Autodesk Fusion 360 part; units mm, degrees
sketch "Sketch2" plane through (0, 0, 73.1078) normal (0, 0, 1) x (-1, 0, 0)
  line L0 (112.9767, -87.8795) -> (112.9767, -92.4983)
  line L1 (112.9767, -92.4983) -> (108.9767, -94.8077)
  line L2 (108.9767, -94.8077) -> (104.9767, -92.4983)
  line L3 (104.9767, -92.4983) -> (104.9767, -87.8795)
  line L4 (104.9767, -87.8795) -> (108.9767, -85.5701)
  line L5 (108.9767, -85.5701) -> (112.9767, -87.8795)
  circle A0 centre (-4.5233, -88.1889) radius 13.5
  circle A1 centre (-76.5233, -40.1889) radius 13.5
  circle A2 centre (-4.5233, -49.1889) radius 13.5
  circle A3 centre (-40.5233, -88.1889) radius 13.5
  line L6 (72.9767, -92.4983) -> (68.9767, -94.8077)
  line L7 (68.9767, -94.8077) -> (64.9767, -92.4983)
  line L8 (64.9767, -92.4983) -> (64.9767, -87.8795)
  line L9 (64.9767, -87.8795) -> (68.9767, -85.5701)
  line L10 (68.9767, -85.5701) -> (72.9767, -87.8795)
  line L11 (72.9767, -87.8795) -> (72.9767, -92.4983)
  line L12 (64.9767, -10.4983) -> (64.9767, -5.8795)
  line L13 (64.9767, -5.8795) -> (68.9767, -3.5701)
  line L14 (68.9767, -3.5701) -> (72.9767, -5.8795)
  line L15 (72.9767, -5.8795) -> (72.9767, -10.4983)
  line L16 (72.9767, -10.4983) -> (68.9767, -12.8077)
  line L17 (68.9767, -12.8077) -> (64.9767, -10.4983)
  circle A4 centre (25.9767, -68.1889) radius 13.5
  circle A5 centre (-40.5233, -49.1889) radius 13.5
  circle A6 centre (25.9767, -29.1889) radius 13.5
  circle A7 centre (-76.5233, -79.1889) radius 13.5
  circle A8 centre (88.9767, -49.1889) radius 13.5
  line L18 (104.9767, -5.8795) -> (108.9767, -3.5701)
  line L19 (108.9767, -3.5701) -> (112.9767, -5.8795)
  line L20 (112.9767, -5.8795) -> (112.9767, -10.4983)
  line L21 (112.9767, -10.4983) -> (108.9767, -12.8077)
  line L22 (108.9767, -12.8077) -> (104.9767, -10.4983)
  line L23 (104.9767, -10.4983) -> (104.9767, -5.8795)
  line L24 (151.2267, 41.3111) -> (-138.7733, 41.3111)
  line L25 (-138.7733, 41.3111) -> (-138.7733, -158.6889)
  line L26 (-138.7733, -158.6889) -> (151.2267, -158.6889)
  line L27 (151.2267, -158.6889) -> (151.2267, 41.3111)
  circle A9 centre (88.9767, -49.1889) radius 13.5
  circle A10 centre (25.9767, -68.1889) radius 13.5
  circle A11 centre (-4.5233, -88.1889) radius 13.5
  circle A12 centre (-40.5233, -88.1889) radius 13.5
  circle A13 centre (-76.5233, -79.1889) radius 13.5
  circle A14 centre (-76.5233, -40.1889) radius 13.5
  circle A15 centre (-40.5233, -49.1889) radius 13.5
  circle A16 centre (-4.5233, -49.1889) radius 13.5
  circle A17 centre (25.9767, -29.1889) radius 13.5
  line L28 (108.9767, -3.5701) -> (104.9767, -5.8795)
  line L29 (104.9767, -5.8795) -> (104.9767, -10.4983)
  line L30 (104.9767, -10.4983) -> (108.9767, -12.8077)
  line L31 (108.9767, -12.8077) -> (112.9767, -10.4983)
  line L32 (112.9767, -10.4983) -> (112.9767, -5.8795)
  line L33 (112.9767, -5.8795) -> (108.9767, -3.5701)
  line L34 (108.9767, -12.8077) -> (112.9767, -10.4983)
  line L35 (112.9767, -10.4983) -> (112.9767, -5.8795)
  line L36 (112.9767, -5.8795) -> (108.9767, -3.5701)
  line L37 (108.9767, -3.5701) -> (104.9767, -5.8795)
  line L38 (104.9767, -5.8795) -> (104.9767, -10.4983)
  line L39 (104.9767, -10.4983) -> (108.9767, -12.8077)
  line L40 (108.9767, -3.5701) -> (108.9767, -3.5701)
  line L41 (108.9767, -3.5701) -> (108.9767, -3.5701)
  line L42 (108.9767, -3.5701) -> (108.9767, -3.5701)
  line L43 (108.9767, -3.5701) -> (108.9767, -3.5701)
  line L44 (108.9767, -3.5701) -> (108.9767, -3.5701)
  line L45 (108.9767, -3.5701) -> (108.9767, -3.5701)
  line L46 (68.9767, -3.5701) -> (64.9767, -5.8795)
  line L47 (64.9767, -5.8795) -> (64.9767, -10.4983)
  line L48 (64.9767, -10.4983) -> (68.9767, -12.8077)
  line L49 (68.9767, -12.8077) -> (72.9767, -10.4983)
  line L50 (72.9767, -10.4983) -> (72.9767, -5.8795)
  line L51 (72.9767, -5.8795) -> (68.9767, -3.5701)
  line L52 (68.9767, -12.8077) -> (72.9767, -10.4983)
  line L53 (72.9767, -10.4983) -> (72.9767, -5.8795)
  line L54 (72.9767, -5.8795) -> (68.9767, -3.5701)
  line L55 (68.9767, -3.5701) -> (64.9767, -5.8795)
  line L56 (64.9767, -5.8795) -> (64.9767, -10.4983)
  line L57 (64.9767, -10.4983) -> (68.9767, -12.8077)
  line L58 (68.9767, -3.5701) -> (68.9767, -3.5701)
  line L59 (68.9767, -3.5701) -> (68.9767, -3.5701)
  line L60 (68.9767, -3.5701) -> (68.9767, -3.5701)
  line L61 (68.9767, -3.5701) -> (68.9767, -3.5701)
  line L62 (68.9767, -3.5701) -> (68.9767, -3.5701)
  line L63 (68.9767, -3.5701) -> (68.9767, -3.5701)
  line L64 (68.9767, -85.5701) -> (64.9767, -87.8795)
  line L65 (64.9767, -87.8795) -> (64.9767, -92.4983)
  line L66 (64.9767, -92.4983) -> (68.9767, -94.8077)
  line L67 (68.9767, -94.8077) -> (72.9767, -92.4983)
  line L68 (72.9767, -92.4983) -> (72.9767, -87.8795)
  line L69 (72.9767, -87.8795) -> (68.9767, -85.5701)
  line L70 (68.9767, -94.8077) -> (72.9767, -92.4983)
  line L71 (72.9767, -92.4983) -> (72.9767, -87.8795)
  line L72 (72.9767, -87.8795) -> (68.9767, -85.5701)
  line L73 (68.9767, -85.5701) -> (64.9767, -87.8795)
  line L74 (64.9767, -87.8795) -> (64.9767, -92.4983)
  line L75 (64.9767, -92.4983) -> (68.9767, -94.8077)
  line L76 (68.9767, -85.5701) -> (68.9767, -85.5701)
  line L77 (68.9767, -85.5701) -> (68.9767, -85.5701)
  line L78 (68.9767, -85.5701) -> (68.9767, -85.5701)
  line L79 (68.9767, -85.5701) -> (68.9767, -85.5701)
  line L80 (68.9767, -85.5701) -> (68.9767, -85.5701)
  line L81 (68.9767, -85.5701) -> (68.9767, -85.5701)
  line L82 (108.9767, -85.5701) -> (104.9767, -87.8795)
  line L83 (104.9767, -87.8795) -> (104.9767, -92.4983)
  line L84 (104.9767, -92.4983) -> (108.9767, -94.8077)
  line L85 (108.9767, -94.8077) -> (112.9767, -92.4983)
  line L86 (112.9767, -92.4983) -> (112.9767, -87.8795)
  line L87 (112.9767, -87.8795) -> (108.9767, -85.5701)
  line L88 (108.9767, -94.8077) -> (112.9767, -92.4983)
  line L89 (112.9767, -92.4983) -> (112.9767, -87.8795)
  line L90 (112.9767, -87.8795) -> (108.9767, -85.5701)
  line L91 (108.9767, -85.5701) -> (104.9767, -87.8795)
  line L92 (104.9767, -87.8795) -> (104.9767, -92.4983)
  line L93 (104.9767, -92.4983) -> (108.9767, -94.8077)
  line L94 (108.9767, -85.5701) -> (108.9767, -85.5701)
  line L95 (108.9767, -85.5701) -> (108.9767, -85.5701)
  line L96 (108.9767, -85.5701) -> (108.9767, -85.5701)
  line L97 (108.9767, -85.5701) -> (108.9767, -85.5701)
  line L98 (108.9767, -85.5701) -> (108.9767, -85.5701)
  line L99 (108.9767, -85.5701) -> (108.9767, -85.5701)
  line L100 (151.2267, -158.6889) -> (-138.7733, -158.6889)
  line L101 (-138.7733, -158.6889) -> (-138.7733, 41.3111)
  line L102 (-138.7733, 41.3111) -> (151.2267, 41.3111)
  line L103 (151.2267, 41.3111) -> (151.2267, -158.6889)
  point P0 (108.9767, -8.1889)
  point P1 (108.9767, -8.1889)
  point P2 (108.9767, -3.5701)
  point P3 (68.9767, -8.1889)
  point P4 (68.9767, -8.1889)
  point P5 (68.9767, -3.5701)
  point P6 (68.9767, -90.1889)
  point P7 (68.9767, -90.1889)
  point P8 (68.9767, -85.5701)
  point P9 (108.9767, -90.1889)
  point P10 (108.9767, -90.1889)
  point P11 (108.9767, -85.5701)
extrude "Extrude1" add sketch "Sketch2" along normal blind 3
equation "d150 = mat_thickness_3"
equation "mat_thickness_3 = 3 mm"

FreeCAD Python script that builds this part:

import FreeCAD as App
import Part
import Sketcher
Q = App.Units.Quantity

doc = App.newDocument("Part")
params = doc.addObject("Spreadsheet::Sheet", "Params")
for row, (alias, value) in enumerate([
    ("sketch1_diameter", "27 mm"),
    ("sketch1_width", "290 mm"),
    ("sketch1_height", "200 mm"),
    ("pad1_length", "3 mm"),
], start=1):
    params.set(f"A{row}", alias)
    params.set(f"B{row}", "=" + value)
    params.setAlias(f"B{row}", alias)

body = doc.addObject("PartDesign::Body", "Body")

sketch1 = doc.addObject("Sketcher::SketchObject", "Sketch")
body.addObject(sketch1)
sketch1.AttachmentSupport = (doc.XY_Plane, [""])
sketch1.MapMode = "FlatFace"
sketch1.AttachmentOffset = App.Placement(App.Vector(0, 0, 73.1078), App.Rotation())
sketch1.addGeometry([
    Part.LineSegment(App.Vector(-151.2, 158.7, 0), App.Vector(-151.2, -41.3, 0)),
    Part.LineSegment(App.Vector(-151.2, -41.3, 0), App.Vector(138.8, -41.3, 0)),
    Part.LineSegment(App.Vector(138.8, -41.3, 0), App.Vector(138.8, 158.7, 0)),
    Part.LineSegment(App.Vector(138.8, 158.7, 0), App.Vector(-151.2, 158.7, 0)),
    Part.Circle(App.Vector(76.5, 79.2, 0), App.Vector(0, 0, 1), 13.5),
    Part.Circle(App.Vector(40.5, 88.2, 0), App.Vector(0, 0, 1), 13.5),
    Part.Circle(App.Vector(4.5, 88.2, 0), App.Vector(0, 0, 1), 13.5),
    Part.LineSegment(App.Vector(-73, 87.9, 0), App.Vector(-73, 92.5, 0)),
    Part.LineSegment(App.Vector(-73, 92.5, 0), App.Vector(-69, 94.8, 0)),
    Part.LineSegment(App.Vector(-69, 94.8, 0), App.Vector(-65, 92.5, 0)),
    Part.LineSegment(App.Vector(-65, 92.5, 0), App.Vector(-65, 87.9, 0)),
    Part.LineSegment(App.Vector(-65, 87.9, 0), App.Vector(-69, 85.6, 0)),
    Part.LineSegment(App.Vector(-69, 85.6, 0), App.Vector(-73, 87.9, 0)),
    Part.Circle(App.Vector(-26, 68.2, 0), App.Vector(0, 0, 1), 13.5),
    Part.LineSegment(App.Vector(-109, 85.6, 0), App.Vector(-113, 87.9, 0)),
    Part.LineSegment(App.Vector(-113, 87.9, 0), App.Vector(-113, 92.5, 0)),
    Part.LineSegment(App.Vector(-113, 92.5, 0), App.Vector(-109, 94.8, 0)),
    Part.LineSegment(App.Vector(-109, 94.8, 0), App.Vector(-105, 92.5, 0)),
    Part.LineSegment(App.Vector(-105, 92.5, 0), App.Vector(-105, 87.9, 0)),
    Part.LineSegment(App.Vector(-105, 87.9, 0), App.Vector(-109, 85.6, 0)),
    Part.Circle(App.Vector(76.5, 40.2, 0), App.Vector(0, 0, 1), 13.5),
    Part.Circle(App.Vector(40.5, 49.2, 0), App.Vector(0, 0, 1), 13.5),
    Part.Circle(App.Vector(4.5, 49.2, 0), App.Vector(0, 0, 1), 13.5),
    Part.Circle(App.Vector(-26, 29.2, 0), App.Vector(0, 0, 1), 13.5),
    Part.Circle(App.Vector(-89, 49.2, 0), App.Vector(0, 0, 1), 13.5),
    Part.LineSegment(App.Vector(-69, 12.8, 0), App.Vector(-65, 10.5, 0)),
    Part.LineSegment(App.Vector(-65, 10.5, 0), App.Vector(-65, 5.9, 0)),
    Part.LineSegment(App.Vector(-65, 5.9, 0), App.Vector(-69, 3.6, 0)),
    Part.LineSegment(App.Vector(-69, 3.6, 0), App.Vector(-73, 5.9, 0)),
    Part.LineSegment(App.Vector(-73, 5.9, 0), App.Vector(-73, 10.5, 0)),
    Part.LineSegment(App.Vector(-73, 10.5, 0), App.Vector(-69, 12.8, 0)),
    Part.LineSegment(App.Vector(-105, 10.5, 0), App.Vector(-105, 5.9, 0)),
    Part.LineSegment(App.Vector(-105, 5.9, 0), App.Vector(-109, 3.6, 0)),
    Part.LineSegment(App.Vector(-109, 3.6, 0), App.Vector(-113, 5.9, 0)),
    Part.LineSegment(App.Vector(-113, 5.9, 0), App.Vector(-113, 10.5, 0)),
    Part.LineSegment(App.Vector(-113, 10.5, 0), App.Vector(-109, 12.8, 0)),
    Part.LineSegment(App.Vector(-109, 12.8, 0), App.Vector(-105, 10.5, 0)),
], False)
sketch1.addConstraint([
    Sketcher.Constraint("Coincident", 0, 2, 1, 1),
    Sketcher.Constraint("Coincident", 1, 2, 2, 1),
    Sketcher.Constraint("Coincident", 2, 2, 3, 1),
    Sketcher.Constraint("Coincident", 3, 2, 0, 1),
    Sketcher.Constraint("Coincident", 7, 2, 8, 1),
    Sketcher.Constraint("Coincident", 8, 2, 9, 1),
    Sketcher.Constraint("Coincident", 9, 2, 10, 1),
    Sketcher.Constraint("Coincident", 10, 2, 11, 1),
    Sketcher.Constraint("Coincident", 11, 2, 12, 1),
    Sketcher.Constraint("Coincident", 12, 2, 7, 1),
    Sketcher.Constraint("Coincident", 14, 2, 15, 1),
    Sketcher.Constraint("Coincident", 15, 2, 16, 1),
    Sketcher.Constraint("Coincident", 16, 2, 17, 1),
    Sketcher.Constraint("Coincident", 17, 2, 18, 1),
    Sketcher.Constraint("Coincident", 18, 2, 19, 1),
    Sketcher.Constraint("Coincident", 19, 2, 14, 1),
    Sketcher.Constraint("Coincident", 25, 2, 26, 1),
    Sketcher.Constraint("Coincident", 26, 2, 27, 1),
    Sketcher.Constraint("Coincident", 27, 2, 28, 1),
    Sketcher.Constraint("Coincident", 28, 2, 29, 1),
    Sketcher.Constraint("Coincident", 29, 2, 30, 1),
    Sketcher.Constraint("Coincident", 30, 2, 25, 1),
    Sketcher.Constraint("Coincident", 31, 2, 32, 1),
    Sketcher.Constraint("Coincident", 32, 2, 33, 1),
    Sketcher.Constraint("Coincident", 33, 2, 34, 1),
    Sketcher.Constraint("Coincident", 34, 2, 35, 1),
    Sketcher.Constraint("Coincident", 35, 2, 36, 1),
    Sketcher.Constraint("Coincident", 36, 2, 31, 1),
    Sketcher.Constraint("Vertical", 0),
    Sketcher.Constraint("Horizontal", 1),
    Sketcher.Constraint("Vertical", 2),
    Sketcher.Constraint("Horizontal", 3),
    Sketcher.Constraint("Vertical", 7),
    Sketcher.Constraint("Vertical", 10),
    Sketcher.Constraint("Vertical", 15),
    Sketcher.Constraint("Vertical", 18),
    Sketcher.Constraint("Vertical", 26),
    Sketcher.Constraint("Vertical", 29),
    Sketcher.Constraint("Vertical", 31),
    Sketcher.Constraint("Vertical", 34),
    Sketcher.Constraint("Equal", 4, 5),
    Sketcher.Constraint("Equal", 5, 6),
    Sketcher.Constraint("Equal", 6, 13),
    Sketcher.Constraint("Equal", 13, 20),
    Sketcher.Constraint("Equal", 20, 21),
    Sketcher.Constraint("Equal", 21, 22),
    Sketcher.Constraint("Equal", 22, 23),
    Sketcher.Constraint("Equal", 23, 24),
    Sketcher.Constraint("Parallel", 8, 11),
    Sketcher.Constraint("Parallel", 9, 12),
    Sketcher.Constraint("Parallel", 12, 14),
    Sketcher.Constraint("Parallel", 11, 16),
    Sketcher.Constraint("Parallel", 14, 17),
    Sketcher.Constraint("Parallel", 16, 19),
    Sketcher.Constraint("Parallel", 17, 25),
    Sketcher.Constraint("Parallel", 19, 27),
    Sketcher.Constraint("Parallel", 25, 28),
    Sketcher.Constraint("Parallel", 27, 30),
    Sketcher.Constraint("Parallel", 30, 32),
    Sketcher.Constraint("Parallel", 28, 33),
    Sketcher.Constraint("Parallel", 32, 35),
    Sketcher.Constraint("Parallel", 33, 36),
    Sketcher.Constraint("Horizontal", 5, 3, 6, 3),
    Sketcher.Constraint("Horizontal", 21, 3, 22, 3),
    Sketcher.Constraint("Horizontal", 22, 3, 24, 3),
    Sketcher.Constraint("Horizontal", 7, 2, 9, 2),
    Sketcher.Constraint("Horizontal", 10, 2, 12, 2),
    Sketcher.Constraint("Horizontal", 12, 2, 14, 2),
    Sketcher.Constraint("Horizontal", 9, 2, 15, 2),
    Sketcher.Constraint("Horizontal", 8, 2, 16, 2),
    Sketcher.Constraint("Horizontal", 15, 2, 17, 2),
    Sketcher.Constraint("Horizontal", 14, 2, 18, 2),
    Sketcher.Constraint("Horizontal", 26, 2, 28, 2),
    Sketcher.Constraint("Horizontal", 25, 2, 29, 2),
    Sketcher.Constraint("Horizontal", 28, 2, 31, 2),
    Sketcher.Constraint("Horizontal", 27, 2, 32, 2),
    Sketcher.Constraint("Horizontal", 31, 2, 33, 2),
    Sketcher.Constraint("Horizontal", 29, 2, 34, 2),
    Sketcher.Constraint("Horizontal", 30, 2, 35, 2),
    Sketcher.Constraint("Vertical", 4, 3, 20, 3),
    Sketcher.Constraint("Vertical", 5, 3, 21, 3),
    Sketcher.Constraint("Vertical", 6, 3, 22, 3),
    Sketcher.Constraint("Vertical", 13, 3, 23, 3),
    Sketcher.Constraint("Vertical", 8, 2, 11, 2),
    Sketcher.Constraint("Vertical", 10, 2, 25, 2),
    Sketcher.Constraint("Vertical", 11, 2, 27, 2),
    Sketcher.Constraint("Vertical", 18, 2, 31, 2),
    Sketcher.Constraint("Equal", 18, 26),
    Sketcher.Constraint("Diameter", 4, 27.0),
    Sketcher.Constraint("DistanceX", 1, 1, 1, 2, 290.0),
    Sketcher.Constraint("DistanceY", 0, 2, 0, 1, 200.0),
    Sketcher.Constraint("Angle", 8, Q("30 deg")),
    Sketcher.Constraint("DistanceX", 5, 3, 4, 3, 36.0),
    Sketcher.Constraint("DistanceY", 4, 3, 5, 3, 9.0),
    Sketcher.Constraint("DistanceX", 6, 3, 5, 3, 36.0),
    Sketcher.Constraint("DistanceY", 13, 3, 6, 3, 20.0),
    Sketcher.Constraint("DistanceY", 20, 3, 4, 3, 39.0),
    Sketcher.Constraint("DistanceY", 20, 3, 21, 3, 9.0),
    Sketcher.Constraint("DistanceY", 23, 3, 22, 3, 20.0),
    Sketcher.Constraint("DistanceX", 24, 3, 13, 3, 63.0),
    Sketcher.Constraint("DistanceX", 24, 3, 7, 2, 16.0),
    Sketcher.Constraint("DistanceX", 7, 2, 8, 2, 4.0),
    Sketcher.Constraint("DistanceX", 14, 2, 12, 2, 40.0),
    Sketcher.Constraint("DistanceX", 13, 3, 6, 3, 30.5),
    Sketcher.Constraint("DistanceY", 0, 2, 24, 3, 90.5),
    Sketcher.Constraint("DistanceY", -1, 1, 11, 2, 85.57),
    Sketcher.Constraint("DistanceY", -1, 1, 27, 2, 3.57),
    Sketcher.Constraint("DistanceX", 0, 2, 24, 3, 62.25),
    Sketcher.Constraint("DistanceY", 7, 1, 7, 2, 4.6188),
    Sketcher.Constraint("DistanceY", -1, 1, 4, 3, 79.189),
    Sketcher.Constraint("DistanceX", -1, 1, 4, 3, 76.5233),
])
sketch1.setExpression("Constraints[88]", "Params.sketch1_diameter")
sketch1.setExpression("Constraints[89]", "Params.sketch1_width")
sketch1.setExpression("Constraints[90]", "Params.sketch1_height")
pad1 = doc.addObject("PartDesign::Pad", "Pad")
body.addObject(pad1)
pad1.Profile = sketch1
pad1.setExpression("Length", "Params.pad1_length")

doc.recompute()
